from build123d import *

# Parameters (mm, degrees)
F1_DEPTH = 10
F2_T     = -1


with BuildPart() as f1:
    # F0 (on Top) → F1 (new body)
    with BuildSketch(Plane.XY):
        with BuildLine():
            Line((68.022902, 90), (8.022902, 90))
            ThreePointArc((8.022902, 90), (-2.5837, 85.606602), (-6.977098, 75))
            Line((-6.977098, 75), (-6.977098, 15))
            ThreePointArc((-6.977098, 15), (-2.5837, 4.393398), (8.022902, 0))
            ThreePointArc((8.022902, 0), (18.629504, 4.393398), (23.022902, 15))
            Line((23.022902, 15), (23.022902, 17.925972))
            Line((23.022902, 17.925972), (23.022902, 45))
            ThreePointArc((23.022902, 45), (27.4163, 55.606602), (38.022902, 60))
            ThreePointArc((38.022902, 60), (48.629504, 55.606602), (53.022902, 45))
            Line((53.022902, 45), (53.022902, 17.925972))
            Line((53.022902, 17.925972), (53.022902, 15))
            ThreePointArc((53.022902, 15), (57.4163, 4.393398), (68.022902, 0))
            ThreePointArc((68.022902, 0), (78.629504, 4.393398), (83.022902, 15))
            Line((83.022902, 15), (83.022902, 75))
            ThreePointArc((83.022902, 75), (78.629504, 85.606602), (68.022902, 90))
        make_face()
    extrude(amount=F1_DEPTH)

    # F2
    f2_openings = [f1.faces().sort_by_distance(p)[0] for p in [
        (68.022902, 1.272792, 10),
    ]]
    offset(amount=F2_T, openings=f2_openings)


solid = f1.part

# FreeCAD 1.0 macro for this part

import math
import FreeCAD as App
import Part
import Sketcher
Q = App.Units.Quantity


def faces_at(feature, points):
    """Names of the faces that lie closest to the given points."""
    faces = feature.Shape.Faces
    near = lambda p: min(range(len(faces)), key=lambda i: faces[i].distToShape(Part.Vertex(*p))[0])
    return sorted({f"Face{near(p) + 1}" for p in points})

doc = App.newDocument("Part")
body = doc.addObject("PartDesign::Body", "Body")

# Sketch on XY plane
sketch1 = body.newObject("Sketcher::SketchObject", "Sketch")
sketch1.AttachmentSupport = (doc.getObject("XY_Plane"), [""])
sketch1.MapMode = "FlatFace"
sketch1.addGeometry([
    Part.LineSegment(App.Vector(68.022902, 90, 0), App.Vector(8.022902, 90, 0)),  # 0
    Part.ArcOfCircle(Part.Circle(App.Vector(8.022901, 75.000001, 0), App.Vector(0, 0, 1), 14.999999), math.radians(89.999996), math.radians(180.000004)),  # 1
    Part.LineSegment(App.Vector(-6.977098, 75, 0), App.Vector(-6.977098, 15, 0)),  # 2
    Part.ArcOfCircle(Part.Circle(App.Vector(8.022901, 14.999999, 0), App.Vector(0, 0, 1), 14.999999), math.radians(179.999996), math.radians(270.000004)),  # 3
    Part.ArcOfCircle(Part.Circle(App.Vector(8.022903, 14.999999, 0), App.Vector(0, 0, 1), 14.999999), math.radians(-90.000004), math.radians(0.000004)),  # 4
    Part.LineSegment(App.Vector(23.022902, 15, 0), App.Vector(23.022902, 45, 0)),  # 5
    Part.ArcOfCircle(Part.Circle(App.Vector(38.022901, 45.000001, 0), App.Vector(0, 0, 1), 14.999999), math.radians(89.999996), math.radians(180.000004)),  # 6
    Part.ArcOfCircle(Part.Circle(App.Vector(38.022903, 45.000001, 0), App.Vector(0, 0, 1), 14.999999), math.radians(-0.000004), math.radians(90.000004)),  # 7
    Part.LineSegment(App.Vector(53.022902, 45, 0), App.Vector(53.022902, 15, 0)),  # 8
    Part.ArcOfCircle(Part.Circle(App.Vector(68.022901, 14.999999, 0), App.Vector(0, 0, 1), 14.999999), math.radians(179.999996), math.radians(270.000004)),  # 9
    Part.ArcOfCircle(Part.Circle(App.Vector(68.022903, 14.999999, 0), App.Vector(0, 0, 1), 14.999999), math.radians(-90.000004), math.radians(0.000004)),  # 10
    Part.LineSegment(App.Vector(83.022902, 15, 0), App.Vector(83.022902, 75, 0)),  # 11
    Part.ArcOfCircle(Part.Circle(App.Vector(68.022903, 75.000001, 0), App.Vector(0, 0, 1), 14.999999), math.radians(-0.000004), math.radians(90.000004)),  # 12
], False)
sketch1.addConstraint([
    Sketcher.Constraint("Tangent", 0, 2, 1, 1),
    Sketcher.Constraint("Tangent", 1, 2, 2, 1),
    Sketcher.Constraint("Tangent", 2, 2, 3, 1),
    Sketcher.Constraint("Tangent", 3, 2, 4, 1),
    Sketcher.Constraint("Tangent", 4, 2, 5, 1),
    Sketcher.Constraint("Tangent", 5, 2, 6, 2),
    Sketcher.Constraint("Tangent", 6, 1, 7, 2),
    Sketcher.Constraint("Tangent", 7, 1, 8, 1),
    Sketcher.Constraint("Tangent", 8, 2, 9, 1),
    Sketcher.Constraint("Tangent", 9, 2, 10, 1),
    Sketcher.Constraint("Tangent", 10, 2, 11, 1),
    Sketcher.Constraint("Tangent", 11, 2, 12, 1),
    Sketcher.Constraint("Tangent", 12, 2, 0, 1),
    Sketcher.Constraint("Horizontal", 0),
    Sketcher.Constraint("Vertical", 2),
    Sketcher.Constraint("Vertical", 5),
    Sketcher.Constraint("Vertical", 8),
    Sketcher.Constraint("Vertical", 11),
    Sketcher.Constraint("Equal", 1, 3),
    Sketcher.Constraint("Equal", 3, 4),
    Sketcher.Constraint("Equal", 4, 6),
    Sketcher.Constraint("Equal", 6, 7),
    Sketcher.Constraint("Equal", 7, 9),
    Sketcher.Constraint("Equal", 9, 10),
    Sketcher.Constraint("Equal", 10, 12),
    Sketcher.Constraint("PointOnObject", 3, 2, -1),
    Sketcher.Constraint("PointOnObject", 9, 2, -1),
    Sketcher.Constraint("Vertical", 0, 2, 3, 2),
    Sketcher.Constraint("Vertical", 7, 3, 6, 1),
    Sketcher.Constraint("Vertical", 12, 3, 9, 2),
    Sketcher.Constraint("Equal", 0, 2),
    Sketcher.Constraint("Radius", 1, Q("14.999999 mm")),
    Sketcher.Constraint("DistanceY", 5, 1, 5, 2, Q("30 mm")),
    Sketcher.Constraint("DistanceX", -1, 1, 1, 3, Q("8.022901 mm")),
])
pad1 = body.newObject("PartDesign::Pad", "Pad")
pad1.Profile = sketch1
pad1.Length = 10
doc.recompute()

thickness = body.newObject("PartDesign::Thickness", "Thickness")
thickness.Base = (pad1, faces_at(pad1, [(20.023, 27, 10)]))
thickness.Value = 1
thickness.Reversed = True
thickness.Join = "Arc"

doc.recompute()
